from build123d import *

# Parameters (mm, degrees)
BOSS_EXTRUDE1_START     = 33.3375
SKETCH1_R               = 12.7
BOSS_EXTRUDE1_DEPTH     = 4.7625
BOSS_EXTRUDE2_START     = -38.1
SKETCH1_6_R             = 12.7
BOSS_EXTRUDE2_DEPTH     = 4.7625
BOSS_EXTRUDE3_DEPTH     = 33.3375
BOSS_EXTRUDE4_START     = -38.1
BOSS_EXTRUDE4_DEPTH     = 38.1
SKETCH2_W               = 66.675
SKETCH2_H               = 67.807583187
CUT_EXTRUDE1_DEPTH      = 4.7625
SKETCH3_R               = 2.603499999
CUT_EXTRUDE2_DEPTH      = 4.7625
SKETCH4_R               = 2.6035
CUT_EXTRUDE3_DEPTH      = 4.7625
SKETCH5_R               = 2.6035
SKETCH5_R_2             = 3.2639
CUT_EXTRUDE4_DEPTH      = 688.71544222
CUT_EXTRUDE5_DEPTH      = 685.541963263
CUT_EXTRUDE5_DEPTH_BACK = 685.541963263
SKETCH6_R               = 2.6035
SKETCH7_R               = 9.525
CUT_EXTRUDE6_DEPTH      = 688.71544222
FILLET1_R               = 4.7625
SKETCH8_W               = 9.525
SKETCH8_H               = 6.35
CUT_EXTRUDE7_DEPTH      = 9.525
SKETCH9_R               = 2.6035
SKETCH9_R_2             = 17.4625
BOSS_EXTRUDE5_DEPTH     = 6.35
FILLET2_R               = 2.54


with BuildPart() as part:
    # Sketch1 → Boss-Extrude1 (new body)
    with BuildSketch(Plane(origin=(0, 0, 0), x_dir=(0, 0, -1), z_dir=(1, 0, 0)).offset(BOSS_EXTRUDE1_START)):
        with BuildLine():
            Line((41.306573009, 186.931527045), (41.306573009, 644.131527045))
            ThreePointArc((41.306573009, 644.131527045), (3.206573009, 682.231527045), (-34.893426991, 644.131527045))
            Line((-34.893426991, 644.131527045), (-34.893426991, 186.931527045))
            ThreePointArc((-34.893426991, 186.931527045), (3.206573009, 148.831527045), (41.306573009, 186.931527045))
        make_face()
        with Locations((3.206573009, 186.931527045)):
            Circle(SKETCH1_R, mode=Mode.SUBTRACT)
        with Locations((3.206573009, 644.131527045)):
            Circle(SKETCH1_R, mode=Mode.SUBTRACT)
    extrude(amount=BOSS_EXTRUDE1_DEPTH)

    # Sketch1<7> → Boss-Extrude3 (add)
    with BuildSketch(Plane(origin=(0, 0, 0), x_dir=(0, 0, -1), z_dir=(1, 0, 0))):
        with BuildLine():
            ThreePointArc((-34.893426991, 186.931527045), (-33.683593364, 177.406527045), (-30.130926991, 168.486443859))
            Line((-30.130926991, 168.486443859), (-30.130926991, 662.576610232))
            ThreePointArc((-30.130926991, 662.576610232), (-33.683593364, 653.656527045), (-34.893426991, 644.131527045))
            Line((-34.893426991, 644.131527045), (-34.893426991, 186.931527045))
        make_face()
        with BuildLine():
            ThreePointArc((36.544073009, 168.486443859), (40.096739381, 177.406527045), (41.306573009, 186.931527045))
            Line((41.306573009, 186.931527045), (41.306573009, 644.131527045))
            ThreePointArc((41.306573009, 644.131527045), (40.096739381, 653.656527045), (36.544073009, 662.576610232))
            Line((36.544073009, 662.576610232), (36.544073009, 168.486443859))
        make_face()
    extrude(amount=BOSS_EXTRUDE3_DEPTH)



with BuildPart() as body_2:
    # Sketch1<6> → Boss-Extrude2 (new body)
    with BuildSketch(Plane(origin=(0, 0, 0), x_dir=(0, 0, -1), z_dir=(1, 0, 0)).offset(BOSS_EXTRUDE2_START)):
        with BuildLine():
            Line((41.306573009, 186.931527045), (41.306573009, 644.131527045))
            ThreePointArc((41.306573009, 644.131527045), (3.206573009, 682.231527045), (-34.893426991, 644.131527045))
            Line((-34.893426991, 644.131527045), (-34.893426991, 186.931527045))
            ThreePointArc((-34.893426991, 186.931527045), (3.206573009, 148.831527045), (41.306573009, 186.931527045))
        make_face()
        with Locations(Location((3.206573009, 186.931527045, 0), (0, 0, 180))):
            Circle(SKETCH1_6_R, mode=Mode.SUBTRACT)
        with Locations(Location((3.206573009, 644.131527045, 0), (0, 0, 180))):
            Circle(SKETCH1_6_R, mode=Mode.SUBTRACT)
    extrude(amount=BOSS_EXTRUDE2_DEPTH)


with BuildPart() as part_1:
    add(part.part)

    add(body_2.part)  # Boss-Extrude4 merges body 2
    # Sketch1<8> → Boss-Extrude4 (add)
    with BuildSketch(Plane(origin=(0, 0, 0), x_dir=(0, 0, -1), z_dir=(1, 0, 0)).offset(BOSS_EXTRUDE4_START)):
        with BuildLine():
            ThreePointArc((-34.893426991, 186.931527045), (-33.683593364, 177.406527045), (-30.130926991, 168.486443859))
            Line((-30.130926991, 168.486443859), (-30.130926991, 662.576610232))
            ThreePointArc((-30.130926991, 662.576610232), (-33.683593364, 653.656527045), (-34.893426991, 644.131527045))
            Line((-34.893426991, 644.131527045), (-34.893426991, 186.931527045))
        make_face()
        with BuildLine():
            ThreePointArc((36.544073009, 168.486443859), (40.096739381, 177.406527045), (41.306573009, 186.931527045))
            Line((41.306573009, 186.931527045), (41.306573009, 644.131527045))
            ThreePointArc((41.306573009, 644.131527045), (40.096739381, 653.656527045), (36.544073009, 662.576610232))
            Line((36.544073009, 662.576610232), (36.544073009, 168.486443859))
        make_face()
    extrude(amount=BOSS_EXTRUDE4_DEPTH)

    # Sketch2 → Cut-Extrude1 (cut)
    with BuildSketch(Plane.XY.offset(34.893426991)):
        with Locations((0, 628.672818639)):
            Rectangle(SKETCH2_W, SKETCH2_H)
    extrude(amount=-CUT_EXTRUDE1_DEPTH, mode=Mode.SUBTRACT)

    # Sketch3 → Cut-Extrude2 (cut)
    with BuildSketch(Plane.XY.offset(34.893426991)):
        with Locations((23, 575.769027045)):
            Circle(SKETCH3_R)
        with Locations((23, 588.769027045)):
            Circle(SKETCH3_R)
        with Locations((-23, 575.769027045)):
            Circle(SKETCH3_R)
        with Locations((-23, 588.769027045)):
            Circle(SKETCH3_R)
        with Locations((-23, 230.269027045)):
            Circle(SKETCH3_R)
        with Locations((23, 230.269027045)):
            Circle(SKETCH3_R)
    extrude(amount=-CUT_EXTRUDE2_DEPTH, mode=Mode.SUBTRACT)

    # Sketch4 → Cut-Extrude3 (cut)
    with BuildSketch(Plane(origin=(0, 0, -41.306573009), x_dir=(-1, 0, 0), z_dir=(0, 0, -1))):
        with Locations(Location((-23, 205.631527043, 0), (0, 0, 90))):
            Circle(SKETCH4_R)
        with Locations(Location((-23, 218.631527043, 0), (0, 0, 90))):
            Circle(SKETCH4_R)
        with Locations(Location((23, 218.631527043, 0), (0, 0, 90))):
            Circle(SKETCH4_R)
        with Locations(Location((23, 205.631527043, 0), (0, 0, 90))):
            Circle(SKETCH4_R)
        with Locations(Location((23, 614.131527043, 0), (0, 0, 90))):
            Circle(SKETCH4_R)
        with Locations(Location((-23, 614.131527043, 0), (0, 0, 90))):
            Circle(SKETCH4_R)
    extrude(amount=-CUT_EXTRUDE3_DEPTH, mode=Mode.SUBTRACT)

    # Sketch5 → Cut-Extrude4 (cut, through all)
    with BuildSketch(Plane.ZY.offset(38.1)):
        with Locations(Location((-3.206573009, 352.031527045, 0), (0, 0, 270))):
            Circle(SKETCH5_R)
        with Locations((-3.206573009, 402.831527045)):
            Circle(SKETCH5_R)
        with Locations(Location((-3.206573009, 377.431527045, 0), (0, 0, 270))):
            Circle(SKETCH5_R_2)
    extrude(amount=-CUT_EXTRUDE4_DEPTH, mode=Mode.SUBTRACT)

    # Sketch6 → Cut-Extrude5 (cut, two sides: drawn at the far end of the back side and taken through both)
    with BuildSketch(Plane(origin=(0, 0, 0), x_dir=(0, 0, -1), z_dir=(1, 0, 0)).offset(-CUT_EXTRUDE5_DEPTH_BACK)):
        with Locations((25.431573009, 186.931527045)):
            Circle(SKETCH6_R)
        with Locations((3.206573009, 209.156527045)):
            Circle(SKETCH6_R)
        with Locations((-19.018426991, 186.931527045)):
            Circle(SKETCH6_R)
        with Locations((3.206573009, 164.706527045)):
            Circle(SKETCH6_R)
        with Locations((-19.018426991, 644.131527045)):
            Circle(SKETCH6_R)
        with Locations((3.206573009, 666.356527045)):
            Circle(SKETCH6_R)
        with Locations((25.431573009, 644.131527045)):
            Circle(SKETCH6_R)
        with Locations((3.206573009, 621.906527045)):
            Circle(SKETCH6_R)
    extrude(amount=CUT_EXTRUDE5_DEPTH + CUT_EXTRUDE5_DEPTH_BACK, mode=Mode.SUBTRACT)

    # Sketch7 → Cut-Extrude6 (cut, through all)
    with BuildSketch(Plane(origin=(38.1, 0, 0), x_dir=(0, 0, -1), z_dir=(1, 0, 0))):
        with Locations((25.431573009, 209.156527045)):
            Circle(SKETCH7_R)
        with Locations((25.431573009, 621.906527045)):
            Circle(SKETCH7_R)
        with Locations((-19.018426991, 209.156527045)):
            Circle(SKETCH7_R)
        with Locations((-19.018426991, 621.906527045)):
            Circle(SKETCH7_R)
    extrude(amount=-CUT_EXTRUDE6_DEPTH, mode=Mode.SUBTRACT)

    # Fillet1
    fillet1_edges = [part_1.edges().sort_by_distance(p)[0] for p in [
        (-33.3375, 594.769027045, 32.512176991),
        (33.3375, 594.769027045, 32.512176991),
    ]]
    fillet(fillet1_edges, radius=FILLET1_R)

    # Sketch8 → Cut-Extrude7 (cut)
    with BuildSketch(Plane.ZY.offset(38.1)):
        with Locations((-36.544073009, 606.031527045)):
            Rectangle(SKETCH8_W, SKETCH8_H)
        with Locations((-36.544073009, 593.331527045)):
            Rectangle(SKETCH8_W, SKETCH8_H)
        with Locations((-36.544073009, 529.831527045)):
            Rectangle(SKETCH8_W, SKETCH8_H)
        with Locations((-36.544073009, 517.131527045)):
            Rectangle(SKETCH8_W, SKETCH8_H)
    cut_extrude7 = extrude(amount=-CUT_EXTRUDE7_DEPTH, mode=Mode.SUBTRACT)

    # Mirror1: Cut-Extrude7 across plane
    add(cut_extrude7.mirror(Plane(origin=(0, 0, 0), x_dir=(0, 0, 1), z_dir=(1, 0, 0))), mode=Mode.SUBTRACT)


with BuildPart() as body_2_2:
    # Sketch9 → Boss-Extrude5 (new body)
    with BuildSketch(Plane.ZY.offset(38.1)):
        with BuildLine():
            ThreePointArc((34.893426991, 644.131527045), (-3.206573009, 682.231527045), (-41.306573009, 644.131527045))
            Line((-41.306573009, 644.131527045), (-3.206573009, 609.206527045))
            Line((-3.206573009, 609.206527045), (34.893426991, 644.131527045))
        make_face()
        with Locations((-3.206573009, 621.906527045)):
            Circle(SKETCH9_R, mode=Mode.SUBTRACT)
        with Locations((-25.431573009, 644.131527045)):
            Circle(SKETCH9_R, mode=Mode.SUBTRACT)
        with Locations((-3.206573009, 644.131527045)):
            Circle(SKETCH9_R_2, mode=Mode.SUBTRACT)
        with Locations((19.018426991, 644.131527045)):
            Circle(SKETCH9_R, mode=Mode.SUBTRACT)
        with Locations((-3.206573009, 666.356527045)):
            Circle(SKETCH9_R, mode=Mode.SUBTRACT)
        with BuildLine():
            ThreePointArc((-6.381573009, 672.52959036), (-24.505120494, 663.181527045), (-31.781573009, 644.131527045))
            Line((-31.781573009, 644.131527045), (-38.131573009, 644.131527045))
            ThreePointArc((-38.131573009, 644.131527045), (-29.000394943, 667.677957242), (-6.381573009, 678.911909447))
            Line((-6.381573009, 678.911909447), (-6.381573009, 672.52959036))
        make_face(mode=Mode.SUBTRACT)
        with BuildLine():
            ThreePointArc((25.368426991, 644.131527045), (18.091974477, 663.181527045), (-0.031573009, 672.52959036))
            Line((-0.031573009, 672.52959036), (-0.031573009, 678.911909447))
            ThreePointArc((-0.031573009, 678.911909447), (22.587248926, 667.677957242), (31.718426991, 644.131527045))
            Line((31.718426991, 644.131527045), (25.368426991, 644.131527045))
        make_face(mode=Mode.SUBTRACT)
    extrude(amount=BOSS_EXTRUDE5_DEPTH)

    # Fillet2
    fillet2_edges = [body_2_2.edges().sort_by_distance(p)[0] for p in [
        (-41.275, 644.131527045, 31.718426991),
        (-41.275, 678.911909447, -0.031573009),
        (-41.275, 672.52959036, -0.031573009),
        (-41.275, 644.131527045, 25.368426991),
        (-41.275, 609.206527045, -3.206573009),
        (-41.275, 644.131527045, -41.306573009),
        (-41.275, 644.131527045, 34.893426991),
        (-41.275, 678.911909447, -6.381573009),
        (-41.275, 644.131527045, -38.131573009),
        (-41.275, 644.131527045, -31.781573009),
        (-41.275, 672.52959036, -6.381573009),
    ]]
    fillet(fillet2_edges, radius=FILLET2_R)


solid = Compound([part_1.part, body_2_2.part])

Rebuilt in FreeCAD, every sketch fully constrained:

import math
import FreeCAD as App
import Part
import Sketcher

V = App.Vector
Q = App.Units.Quantity


def edges_at(feature, points):
    """Names of the edges that pass closest to the given points."""
    edges = feature.Shape.Edges
    near = lambda p: min(range(len(edges)), key=lambda i: edges[i].distToShape(Part.Vertex(*p))[0])
    return sorted({f"Edge{near(p) + 1}" for p in points})


def add_polygon(sketch, points):
    """Adds a closed chain of lines whose ends are joined by coincident constraints."""
    first, n = sketch.GeometryCount, len(points)
    for a, b in zip(points, points[1:] + points[:1]):
        sketch.addGeometry(Part.LineSegment(App.Vector(*a, 0), App.Vector(*b, 0)), False)
    for i in range(n):
        sketch.addConstraint(Sketcher.Constraint("Coincident", first + i, 2, first + (i + 1) % n, 1))

doc = App.newDocument("Part")
body = doc.addObject("PartDesign::Body", "Body")

# Sketch on YZ plane
sketch1 = body.newObject("Sketcher::SketchObject", "Sketch")
sketch1.AttachmentSupport = (doc.getObject("YZ_Plane"), [""])
sketch1.MapMode = "FlatFace"
sketch1.AttachmentOffset = App.Placement(V(0, 0, 1.3125 * 25.4), App.Rotation())
sketch1.addGeometry(Part.LineSegment(V(187, -41, 0), V(644, -41, 0)), False)
sketch1.addGeometry(Part.ArcOfCircle(Part.Circle(V(644, -3, 0), V(0, 0, 1), 38), math.radians(-90), math.radians(90)), False)
sketch1.addGeometry(Part.LineSegment(V(644, 35, 0), V(187, 35, 0)), False)
sketch1.addGeometry(Part.ArcOfCircle(Part.Circle(V(187, -3, 0), V(0, 0, 1), 38), math.radians(90), math.radians(270)), False)
sketch1.addGeometry(Part.Circle(V(187, -3, 0), V(0, 0, 1), 13), False)
sketch1.addGeometry(Part.Circle(V(644, -3, 0), V(0, 0, 1), 13), False)
sketch1.addConstraint(Sketcher.Constraint("Tangent", 0, 2, 1, 1))
sketch1.addConstraint(Sketcher.Constraint("Tangent", 1, 2, 2, 1))
sketch1.addConstraint(Sketcher.Constraint("Tangent", 2, 2, 3, 1))
sketch1.addConstraint(Sketcher.Constraint("Tangent", 3, 2, 0, 1))
sketch1.addConstraint(Sketcher.Constraint("Horizontal", 0))
sketch1.addConstraint(Sketcher.Constraint("Horizontal", 2))
sketch1.addConstraint(Sketcher.Constraint("Coincident", 4, 3, 3, 3))
sketch1.addConstraint(Sketcher.Constraint("Coincident", 5, 3, 1, 3))
sketch1.addConstraint(Sketcher.Constraint("Equal", 4, 5))
sketch1.addConstraint(Sketcher.Constraint("Diameter", 4, Q("1 in")))
sketch1.addConstraint(Sketcher.Constraint("Radius", 1, Q("1.5 in")))
sketch1.addConstraint(Sketcher.Constraint("DistanceX", 0, 1, 0, 2, Q("18 in")))
sketch1.addConstraint(Sketcher.Constraint("DistanceX", -1, 1, 1, 3, 644.131527))
sketch1.addConstraint(Sketcher.Constraint("DistanceY", 1, 3, -1, 1, 3.206573))
pad1 = body.newObject("PartDesign::Pad", "Pad")
pad1.Profile = sketch1
pad1.Length = Q("0.1875 in")

# Sketch on YZ plane
sketch2 = body.newObject("Sketcher::SketchObject", "Sketch001")
sketch2.AttachmentSupport = (doc.getObject("YZ_Plane"), [""])
sketch2.MapMode = "FlatFace"
sketch2.addGeometry(Part.ArcOfCircle(Part.Circle(V(187, -3, 0), V(0, 0, 1), 38), math.radians(90), math.radians(119)), False)
sketch2.addGeometry(Part.LineSegment(V(168, 30, 0), V(663, 30, 0)), False)
sketch2.addGeometry(Part.ArcOfCircle(Part.Circle(V(644, -3, 0), V(0, 0, 1), 38), math.radians(61), math.radians(90)), False)
sketch2.addGeometry(Part.LineSegment(V(644, 35, 0), V(187, 35, 0)), False)
sketch2.addGeometry(Part.ArcOfCircle(Part.Circle(V(187, -3, 0), V(0, 0, 1), 38), math.radians(-119), math.radians(-90)), False)
sketch2.addGeometry(Part.LineSegment(V(187, -41, 0), V(644, -41, 0)), False)
sketch2.addGeometry(Part.ArcOfCircle(Part.Circle(V(644, -3, 0), V(0, 0, 1), 38), math.radians(-90), math.radians(-61)), False)
sketch2.addGeometry(Part.LineSegment(V(663, -37, 0), V(168, -37, 0)), False)
sketch2.addConstraint(Sketcher.Constraint("Coincident", 0, 2, 1, 1))
sketch2.addConstraint(Sketcher.Constraint("Coincident", 1, 2, 2, 1))
sketch2.addConstraint(Sketcher.Constraint("Tangent", 2, 2, 3, 1))
sketch2.addConstraint(Sketcher.Constraint("Tangent", 3, 2, 0, 1))
sketch2.addConstraint(Sketcher.Constraint("Tangent", 4, 2, 5, 1))
sketch2.addConstraint(Sketcher.Constraint("Tangent", 5, 2, 6, 1))
sketch2.addConstraint(Sketcher.Constraint("Coincident", 6, 2, 7, 1))
sketch2.addConstraint(Sketcher.Constraint("Coincident", 7, 2, 4, 1))
sketch2.addConstraint(Sketcher.Constraint("Horizontal", 1))
sketch2.addConstraint(Sketcher.Constraint("Horizontal", 3))
sketch2.addConstraint(Sketcher.Constraint("Horizontal", 5))
sketch2.addConstraint(Sketcher.Constraint("Horizontal", 7))
sketch2.addConstraint(Sketcher.Constraint("Coincident", 4, 3, 0, 3))
sketch2.addConstraint(Sketcher.Constraint("Coincident", 6, 3, 2, 3))
sketch2.addConstraint(Sketcher.Constraint("Equal", 0, 2))
sketch2.addConstraint(Sketcher.Constraint("Equal", 2, 4))
sketch2.addConstraint(Sketcher.Constraint("Vertical", 1, 2, 6, 2))
sketch2.addConstraint(Sketcher.Constraint("Radius", 0, Q("1.5 in")))
sketch2.addConstraint(Sketcher.Constraint("DistanceX", 3, 2, 3, 1, Q("18 in")))
sketch2.addConstraint(Sketcher.Constraint("DistanceY", 0, 3, 0, 2, Q("1.3125 in")))
sketch2.addConstraint(Sketcher.Constraint("DistanceX", -1, 1, 1, 2, 662.57661))
sketch2.addConstraint(Sketcher.Constraint("DistanceY", 0, 3, -1, 1, 3.206573))
pad2 = body.newObject("PartDesign::Pad", "Pad001")
pad2.Profile = sketch2
pad2.Length = Q("1.3125 in")
body2 = doc.addObject("PartDesign::Body", "Body001")

# Sketch on YZ plane
sketch3 = body2.newObject("Sketcher::SketchObject", "Sketch002")
sketch3.AttachmentSupport = (doc.getObject("YZ_Plane001"), [""])
sketch3.MapMode = "FlatFace"
sketch3.AttachmentOffset = App.Placement(V(0, 0, -1.5 * 25.4), App.Rotation())
sketch3.addGeometry(Part.LineSegment(V(187, -41, 0), V(644, -41, 0)), False)
sketch3.addGeometry(Part.ArcOfCircle(Part.Circle(V(644, -3, 0), V(0, 0, 1), 38), math.radians(-90), math.radians(90)), False)
sketch3.addGeometry(Part.LineSegment(V(644, 35, 0), V(187, 35, 0)), False)
sketch3.addGeometry(Part.ArcOfCircle(Part.Circle(V(187, -3, 0), V(0, 0, 1), 38), math.radians(90), math.radians(270)), False)
sketch3.addGeometry(Part.Circle(V(187, -3, 0), V(0, 0, 1), 13), False)
sketch3.addGeometry(Part.Circle(V(644, -3, 0), V(0, 0, 1), 13), False)
sketch3.addConstraint(Sketcher.Constraint("Tangent", 0, 2, 1, 1))
sketch3.addConstraint(Sketcher.Constraint("Tangent", 1, 2, 2, 1))
sketch3.addConstraint(Sketcher.Constraint("Tangent", 2, 2, 3, 1))
sketch3.addConstraint(Sketcher.Constraint("Tangent", 3, 2, 0, 1))
sketch3.addConstraint(Sketcher.Constraint("Horizontal", 0))
sketch3.addConstraint(Sketcher.Constraint("Horizontal", 2))
sketch3.addConstraint(Sketcher.Constraint("Coincident", 4, 3, 3, 3))
sketch3.addConstraint(Sketcher.Constraint("Coincident", 5, 3, 1, 3))
sketch3.addConstraint(Sketcher.Constraint("Equal", 4, 5))
sketch3.addConstraint(Sketcher.Constraint("Diameter", 4, Q("1 in")))
sketch3.addConstraint(Sketcher.Constraint("Radius", 1, Q("1.5 in")))
sketch3.addConstraint(Sketcher.Constraint("DistanceX", 0, 1, 0, 2, Q("18 in")))
sketch3.addConstraint(Sketcher.Constraint("DistanceX", -1, 1, 1, 3, 644.131527))
sketch3.addConstraint(Sketcher.Constraint("DistanceY", 1, 3, -1, 1, 3.206573))
pad3 = body2.newObject("PartDesign::Pad", "Pad002")
pad3.Profile = sketch3
pad3.Length = Q("0.1875 in")
body.AllowCompound = True
doc.recompute()

boolean = body.newObject("PartDesign::Boolean", "Boolean")
boolean.Type = "Fuse"
boolean.addObjects([body2])

# Sketch on YZ plane
sketch4 = body.newObject("Sketcher::SketchObject", "Sketch003")
sketch4.AttachmentSupport = (doc.getObject("YZ_Plane"), [""])
sketch4.MapMode = "FlatFace"
sketch4.AttachmentOffset = App.Placement(V(0, 0, -1.5 * 25.4), App.Rotation())
sketch4.addGeometry(Part.ArcOfCircle(Part.Circle(V(187, -3, 0), V(0, 0, 1), 38), math.radians(90), math.radians(119)), False)
sketch4.addGeometry(Part.LineSegment(V(168, 30, 0), V(663, 30, 0)), False)
sketch4.addGeometry(Part.ArcOfCircle(Part.Circle(V(644, -3, 0), V(0, 0, 1), 38), math.radians(61), math.radians(90)), False)
sketch4.addGeometry(Part.LineSegment(V(644, 35, 0), V(187, 35, 0)), False)
sketch4.addGeometry(Part.ArcOfCircle(Part.Circle(V(187, -3, 0), V(0, 0, 1), 38), math.radians(-119), math.radians(-90)), False)
sketch4.addGeometry(Part.LineSegment(V(187, -41, 0), V(644, -41, 0)), False)
sketch4.addGeometry(Part.ArcOfCircle(Part.Circle(V(644, -3, 0), V(0, 0, 1), 38), math.radians(-90), math.radians(-61)), False)
sketch4.addGeometry(Part.LineSegment(V(663, -37, 0), V(168, -37, 0)), False)
sketch4.addConstraint(Sketcher.Constraint("Coincident", 0, 2, 1, 1))
sketch4.addConstraint(Sketcher.Constraint("Coincident", 1, 2, 2, 1))
sketch4.addConstraint(Sketcher.Constraint("Tangent", 2, 2, 3, 1))
sketch4.addConstraint(Sketcher.Constraint("Tangent", 3, 2, 0, 1))
sketch4.addConstraint(Sketcher.Constraint("Tangent", 4, 2, 5, 1))
sketch4.addConstraint(Sketcher.Constraint("Tangent", 5, 2, 6, 1))
sketch4.addConstraint(Sketcher.Constraint("Coincident", 6, 2, 7, 1))
sketch4.addConstraint(Sketcher.Constraint("Coincident", 7, 2, 4, 1))
sketch4.addConstraint(Sketcher.Constraint("Horizontal", 1))
sketch4.addConstraint(Sketcher.Constraint("Horizontal", 3))
sketch4.addConstraint(Sketcher.Constraint("Horizontal", 5))
sketch4.addConstraint(Sketcher.Constraint("Horizontal", 7))
sketch4.addConstraint(Sketcher.Constraint("Coincident", 4, 3, 0, 3))
sketch4.addConstraint(Sketcher.Constraint("Coincident", 6, 3, 2, 3))
sketch4.addConstraint(Sketcher.Constraint("Equal", 0, 2))
sketch4.addConstraint(Sketcher.Constraint("Equal", 2, 4))
sketch4.addConstraint(Sketcher.Constraint("Vertical", 1, 2, 6, 2))
sketch4.addConstraint(Sketcher.Constraint("Radius", 0, Q("1.5 in")))
sketch4.addConstraint(Sketcher.Constraint("DistanceX", 3, 2, 3, 1, Q("18 in")))
sketch4.addConstraint(Sketcher.Constraint("DistanceY", 0, 3, 0, 2, Q("1.3125 in")))
sketch4.addConstraint(Sketcher.Constraint("DistanceX", -1, 1, 1, 2, 662.57661))
sketch4.addConstraint(Sketcher.Constraint("DistanceY", 0, 3, -1, 1, 3.206573))
pad4 = body.newObject("PartDesign::Pad", "Pad003")
pad4.Profile = sketch4
pad4.Length = Q("1.5 in")

# Sketch on XY plane
sketch5 = body.newObject("Sketcher::SketchObject", "Sketch004")
sketch5.AttachmentSupport = (doc.getObject("XY_Plane"), [""])
sketch5.MapMode = "FlatFace"
sketch5.AttachmentOffset = App.Placement(V(0, 0, 34.893427), App.Rotation())
add_polygon(sketch5, [(-33, 663), (-33, 595), (33, 595), (33, 663)])  # lines 0-3
sketch5.addConstraint(Sketcher.Constraint("Vertical", 0))
sketch5.addConstraint(Sketcher.Constraint("Horizontal", 1))
sketch5.addConstraint(Sketcher.Constraint("Vertical", 2))
sketch5.addConstraint(Sketcher.Constraint("Horizontal", 3))
sketch5.addConstraint(Sketcher.Constraint("DistanceX", 1, 1, 1, 2, Q("2.625 in")))
sketch5.addConstraint(Sketcher.Constraint("DistanceX", 0, 2, -1, 1, Q("1.3125 in")))
sketch5.addConstraint(Sketcher.Constraint("DistanceY", 0, 2, 0, 1, 67.807583))
sketch5.addConstraint(Sketcher.Constraint("DistanceY", -1, 1, 2, 2, 662.57661))
pocket1 = body.newObject("PartDesign::Pocket", "Pocket")
pocket1.Profile = sketch5
pocket1.Length = Q("0.1875 in")

# Sketch on XY plane
sketch6 = body.newObject("Sketcher::SketchObject", "Sketch005")
sketch6.AttachmentSupport = (doc.getObject("XY_Plane"), [""])
sketch6.MapMode = "FlatFace"
sketch6.AttachmentOffset = App.Placement(V(0, 0, 34.893427), App.Rotation())
sketch6.addGeometry(Part.Circle(V(23, 575.8, 0), V(0, 0, 1), 2.6), False)
sketch6.addGeometry(Part.Circle(V(23, 588.8, 0), V(0, 0, 1), 2.6), False)
sketch6.addGeometry(Part.Circle(V(-23, 575.8, 0), V(0, 0, 1), 2.6), False)
sketch6.addGeometry(Part.Circle(V(-23, 588.8, 0), V(0, 0, 1), 2.6), False)
sketch6.addGeometry(Part.Circle(V(-23, 230.3, 0), V(0, 0, 1), 2.6), False)
sketch6.addGeometry(Part.Circle(V(23, 230.3, 0), V(0, 0, 1), 2.6), False)
sketch6.addConstraint(Sketcher.Constraint("Equal", 0, 1))
sketch6.addConstraint(Sketcher.Constraint("Equal", 1, 2))
sketch6.addConstraint(Sketcher.Constraint("Equal", 2, 3))
sketch6.addConstraint(Sketcher.Constraint("Equal", 3, 4))
sketch6.addConstraint(Sketcher.Constraint("Equal", 4, 5))
sketch6.addConstraint(Sketcher.Constraint("Symmetric", 0, 3, 2, 3, -2))
sketch6.addConstraint(Sketcher.Constraint("Symmetric", 1, 3, 3, 3, -2))
sketch6.addConstraint(Sketcher.Constraint("Symmetric", 4, 3, 5, 3, -2))
sketch6.addConstraint(Sketcher.Constraint("Vertical", 0, 3, 1, 3))
sketch6.addConstraint(Sketcher.Constraint("Vertical", 3, 3, 4, 3))
sketch6.addConstraint(Sketcher.Constraint("Diameter", 0, Q("0.205 in")))
sketch6.addConstraint(Sketcher.Constraint("DistanceX", -1, 1, 0, 3, 23.0))
sketch6.addConstraint(Sketcher.Constraint("DistanceY", 0, 3, 1, 3, 13.0))
sketch6.addConstraint(Sketcher.Constraint("DistanceY", 4, 3, 2, 3, 345.5))
sketch6.addConstraint(Sketcher.Constraint("DistanceY", -1, 1, 0, 3, 575.769027))
pocket2 = body.newObject("PartDesign::Pocket", "Pocket001")
pocket2.Profile = sketch6
pocket2.Length = Q("0.1875 in")

# Sketch on XY plane
sketch7 = body.newObject("Sketcher::SketchObject", "Sketch006")
sketch7.AttachmentSupport = (doc.getObject("XY_Plane"), [""])
sketch7.MapMode = "FlatFace"
sketch7.AttachmentOffset = App.Placement(V(0, 0, -41.306573), App.Rotation())
sketch7.addGeometry(Part.Circle(V(23, 205.6, 0), V(0, 0, 1), 2.6), False)
sketch7.addGeometry(Part.Circle(V(23, 218.6, 0), V(0, 0, 1), 2.6), False)
sketch7.addGeometry(Part.Circle(V(-23, 218.6, 0), V(0, 0, 1), 2.6), False)
sketch7.addGeometry(Part.Circle(V(-23, 205.6, 0), V(0, 0, 1), 2.6), False)
sketch7.addGeometry(Part.Circle(V(-23, 614.1, 0), V(0, 0, 1), 2.6), False)
sketch7.addGeometry(Part.Circle(V(23, 614.1, 0), V(0, 0, 1), 2.6), False)
sketch7.addConstraint(Sketcher.Constraint("Equal", 0, 1))
sketch7.addConstraint(Sketcher.Constraint("Equal", 1, 2))
sketch7.addConstraint(Sketcher.Constraint("Equal", 2, 3))
sketch7.addConstraint(Sketcher.Constraint("Equal", 3, 4))
sketch7.addConstraint(Sketcher.Constraint("Equal", 4, 5))
sketch7.addConstraint(Sketcher.Constraint("Symmetric", 1, 3, 2, 3, -2))
sketch7.addConstraint(Sketcher.Constraint("Symmetric", 0, 3, 3, 3, -2))
sketch7.addConstraint(Sketcher.Constraint("Symmetric", 4, 3, 5, 3, -2))
sketch7.addConstraint(Sketcher.Constraint("Vertical", 0, 3, 1, 3))
sketch7.addConstraint(Sketcher.Constraint("Vertical", 3, 3, 4, 3))
sketch7.addConstraint(Sketcher.Constraint("Diameter", 0, Q("0.205 in")))
sketch7.addConstraint(Sketcher.Constraint("DistanceX", -1, 1, 0, 3, 23.0))
sketch7.addConstraint(Sketcher.Constraint("DistanceY", 0, 3, 1, 3, 13.0))
sketch7.addConstraint(Sketcher.Constraint("DistanceY", 2, 3, 4, 3, 395.5))
sketch7.addConstraint(Sketcher.Constraint("DistanceY", -1, 1, 0, 3, 205.631527))
pocket3 = body.newObject("PartDesign::Pocket", "Pocket002")
pocket3.Profile = sketch7
pocket3.Length = Q("0.1875 in")
pocket3.Reversed = True

# Sketch on YZ plane
sketch8 = body.newObject("Sketcher::SketchObject", "Sketch007")
sketch8.AttachmentSupport = (doc.getObject("YZ_Plane"), [""])
sketch8.MapMode = "FlatFace"
sketch8.AttachmentOffset = App.Placement(V(0, 0, -1.5 * 25.4), App.Rotation())
sketch8.addGeometry(Part.Circle(V(352, -3.2, 0), V(0, 0, 1), 2.6), False)
sketch8.addGeometry(Part.Circle(V(402.8, -3.2, 0), V(0, 0, 1), 2.6), False)
sketch8.addGeometry(Part.Circle(V(377.4, -3.2, 0), V(0, 0, 1), 3.3), False)
sketch8.addConstraint(Sketcher.Constraint("Equal", 0, 1))
sketch8.addConstraint(Sketcher.Constraint("Horizontal", 0, 3, 1, 3))
sketch8.addConstraint(Sketcher.Constraint("Horizontal", 1, 3, 2, 3))
sketch8.addConstraint(Sketcher.Constraint("Diameter", 0, Q("0.205 in")))
sketch8.addConstraint(Sketcher.Constraint("Diameter", 2, Q("0.257 in")))
sketch8.addConstraint(Sketcher.Constraint("DistanceX", 0, 3, 1, 3, Q("2 in")))
sketch8.addConstraint(Sketcher.Constraint("DistanceX", 0, 3, 2, 3, Q("1 in")))
sketch8.addConstraint(Sketcher.Constraint("DistanceX", -1, 1, 0, 3, 352.031527))
sketch8.addConstraint(Sketcher.Constraint("DistanceY", 0, 3, -1, 1, 3.206573))
pocket4 = body.newObject("PartDesign::Pocket", "Pocket003")
pocket4.Profile = sketch8
pocket4.Type = "ThroughAll"
pocket4.Reversed = True

# Sketch on YZ plane
sketch9 = body.newObject("Sketcher::SketchObject", "Sketch008")
sketch9.AttachmentSupport = (doc.getObject("YZ_Plane"), [""])
sketch9.MapMode = "FlatFace"
sketch9.addGeometry(Part.Circle(V(186.9, -25.4, 0), V(0, 0, 1), 2.6), False)
sketch9.addGeometry(Part.Circle(V(209.2, -3.2, 0), V(0, 0, 1), 2.6), False)
sketch9.addGeometry(Part.Circle(V(186.9, 19, 0), V(0, 0, 1), 2.6), False)
sketch9.addGeometry(Part.Circle(V(164.7, -3.2, 0), V(0, 0, 1), 2.6), False)
sketch9.addGeometry(Part.Circle(V(644.1, 19, 0), V(0, 0, 1), 2.6), False)
sketch9.addGeometry(Part.Circle(V(666.4, -3.2, 0), V(0, 0, 1), 2.6), False)
sketch9.addGeometry(Part.Circle(V(644.1, -25.4, 0), V(0, 0, 1), 2.6), False)
sketch9.addGeometry(Part.Circle(V(621.9, -3.2, 0), V(0, 0, 1), 2.6), False)
sketch9.addConstraint(Sketcher.Constraint("Equal", 0, 1))
sketch9.addConstraint(Sketcher.Constraint("Equal", 1, 2))
sketch9.addConstraint(Sketcher.Constraint("Equal", 2, 3))
sketch9.addConstraint(Sketcher.Constraint("Equal", 3, 4))
sketch9.addConstraint(Sketcher.Constraint("Equal", 4, 5))
sketch9.addConstraint(Sketcher.Constraint("Equal", 5, 6))
sketch9.addConstraint(Sketcher.Constraint("Equal", 6, 7))
sketch9.addConstraint(Sketcher.Constraint("Horizontal", 1, 3, 3, 3))
sketch9.addConstraint(Sketcher.Constraint("Horizontal", 2, 3, 4, 3))
sketch9.addConstraint(Sketcher.Constraint("Horizontal", 3, 3, 5, 3))
sketch9.addConstraint(Sketcher.Constraint("Horizontal", 0, 3, 6, 3))
sketch9.addConstraint(Sketcher.Constraint("Horizontal", 5, 3, 7, 3))
sketch9.addConstraint(Sketcher.Constraint("Vertical", 0, 3, 2, 3))
sketch9.addConstraint(Sketcher.Constraint("Vertical", 4, 3, 6, 3))
sketch9.addConstraint(Sketcher.Constraint("Diameter", 0, Q("0.205 in")))
sketch9.addConstraint(Sketcher.Constraint("DistanceX", 2, 3, 4, 3, Q("18 in")))
sketch9.addConstraint(Sketcher.Constraint("DistanceX", 1, 3, 5, 3, Q("18 in")))
sketch9.addConstraint(Sketcher.Constraint("DistanceY", 0, 3, 2, 3, Q("1.75 in")))
sketch9.addConstraint(Sketcher.Constraint("DistanceX", 3, 3, 1, 3, Q("1.75 in")))
sketch9.addConstraint(Sketcher.Constraint("DistanceX", 7, 3, 5, 3, Q("1.75 in")))
sketch9.addConstraint(Sketcher.Constraint("DistanceX", 0, 3, 1, 3, Q("0.875 in")))
sketch9.addConstraint(Sketcher.Constraint("DistanceY", 0, 3, 1, 3, Q("0.875 in")))
sketch9.addConstraint(Sketcher.Constraint("DistanceX", -1, 1, 0, 3, 186.931527))
sketch9.addConstraint(Sketcher.Constraint("DistanceY", 0, 3, -1, 1, 25.431573))
pocket5 = body.newObject("PartDesign::Pocket", "Pocket004")
pocket5.Profile = sketch9
pocket5.Type = "ThroughAll"
pocket5.Midplane = True

# Sketch on YZ plane
sketch10 = body.newObject("Sketcher::SketchObject", "Sketch009")
sketch10.AttachmentSupport = (doc.getObject("YZ_Plane"), [""])
sketch10.MapMode = "FlatFace"
sketch10.AttachmentOffset = App.Placement(V(0, 0, 1.5 * 25.4), App.Rotation())
sketch10.addGeometry(Part.Circle(V(209, -25, 0), V(0, 0, 1), 10), False)
sketch10.addGeometry(Part.Circle(V(622, -25, 0), V(0, 0, 1), 10), False)
sketch10.addGeometry(Part.Circle(V(209, 19, 0), V(0, 0, 1), 10), False)
sketch10.addGeometry(Part.Circle(V(622, 19, 0), V(0, 0, 1), 10), False)
sketch10.addConstraint(Sketcher.Constraint("Equal", 0, 1))
sketch10.addConstraint(Sketcher.Constraint("Equal", 1, 2))
sketch10.addConstraint(Sketcher.Constraint("Equal", 2, 3))
sketch10.addConstraint(Sketcher.Constraint("Horizontal", 0, 3, 1, 3))
sketch10.addConstraint(Sketcher.Constraint("Horizontal", 2, 3, 3, 3))
sketch10.addConstraint(Sketcher.Constraint("Vertical", 0, 3, 2, 3))
sketch10.addConstraint(Sketcher.Constraint("Vertical", 1, 3, 3, 3))
sketch10.addConstraint(Sketcher.Constraint("Diameter", 0, Q("0.75 in")))
sketch10.addConstraint(Sketcher.Constraint("DistanceX", 0, 3, 1, 3, Q("16.25 in")))
sketch10.addConstraint(Sketcher.Constraint("DistanceY", 0, 3, 2, 3, Q("1.75 in")))
sketch10.addConstraint(Sketcher.Constraint("DistanceX", -1, 1, 0, 3, 209.156527))
sketch10.addConstraint(Sketcher.Constraint("DistanceY", 0, 3, -1, 1, 25.431573))
pocket6 = body.newObject("PartDesign::Pocket", "Pocket005")
pocket6.Profile = sketch10
pocket6.Type = "ThroughAll"
doc.recompute()

fillet = body.newObject("PartDesign::Fillet", "Fillet")
fillet.Base = (pocket6, edges_at(pocket6, [(-33.337, 594.769, 32.512), (33.337, 594.769, 32.512)]))
fillet.Radius = Q("0.1875 in")

# Sketch on YZ plane
sketch11 = body.newObject("Sketcher::SketchObject", "Sketch010")
sketch11.AttachmentSupport = (doc.getObject("YZ_Plane"), [""])
sketch11.MapMode = "FlatFace"
sketch11.AttachmentOffset = App.Placement(V(0, 0, -1.5 * 25.4), App.Rotation())
add_polygon(sketch11, [(609, -41), (603, -41), (603, -32), (609, -32)])  # lines 0-3
add_polygon(sketch11, [(597, -41), (590, -41), (590, -32), (597, -32)])  # lines 4-7
add_polygon(sketch11, [(533, -41), (527, -41), (527, -32), (533, -32)])  # lines 8-11
add_polygon(sketch11, [(520, -41), (514, -41), (514, -32), (520, -32)])  # lines 12-15
sketch11.addConstraint(Sketcher.Constraint("Horizontal", 0))
sketch11.addConstraint(Sketcher.Constraint("Vertical", 1))
sketch11.addConstraint(Sketcher.Constraint("Horizontal", 2))
sketch11.addConstraint(Sketcher.Constraint("Vertical", 3))
sketch11.addConstraint(Sketcher.Constraint("Horizontal", 4))
sketch11.addConstraint(Sketcher.Constraint("Vertical", 5))
sketch11.addConstraint(Sketcher.Constraint("Horizontal", 6))
sketch11.addConstraint(Sketcher.Constraint("Vertical", 7))
sketch11.addConstraint(Sketcher.Constraint("Horizontal", 8))
sketch11.addConstraint(Sketcher.Constraint("Vertical", 9))
sketch11.addConstraint(Sketcher.Constraint("Horizontal", 10))
sketch11.addConstraint(Sketcher.Constraint("Vertical", 11))
sketch11.addConstraint(Sketcher.Constraint("Horizontal", 12))
sketch11.addConstraint(Sketcher.Constraint("Vertical", 13))
sketch11.addConstraint(Sketcher.Constraint("Horizontal", 14))
sketch11.addConstraint(Sketcher.Constraint("Vertical", 15))
sketch11.addConstraint(Sketcher.Constraint("Horizontal", 3, 2, 4, 2))
sketch11.addConstraint(Sketcher.Constraint("Horizontal", 2, 2, 5, 2))
sketch11.addConstraint(Sketcher.Constraint("Horizontal", 7, 2, 8, 2))
sketch11.addConstraint(Sketcher.Constraint("Horizontal", 6, 2, 9, 2))
sketch11.addConstraint(Sketcher.Constraint("Horizontal", 11, 2, 12, 2))
sketch11.addConstraint(Sketcher.Constraint("Horizontal", 10, 2, 13, 2))
sketch11.addConstraint(Sketcher.Constraint("Equal", 2, 4))
sketch11.addConstraint(Sketcher.Constraint("Equal", 6, 8))
sketch11.addConstraint(Sketcher.Constraint("Equal", 10, 12))
sketch11.addConstraint(Sketcher.Constraint("DistanceX", 8, 2, 0, 2, Q("3 in")))
sketch11.addConstraint(Sketcher.Constraint("DistanceX", 12, 2, 4, 2, Q("3 in")))
sketch11.addConstraint(Sketcher.Constraint("DistanceX", 0, 2, 0, 1, Q("0.25 in")))
sketch11.addConstraint(Sketcher.Constraint("DistanceX", 4, 2, 0, 2, Q("0.5 in")))
sketch11.addConstraint(Sketcher.Constraint("DistanceY", 1, 1, 1, 2, Q("0.375 in")))
sketch11.addConstraint(Sketcher.Constraint("DistanceX", -1, 1, 0, 2, 602.856527))
sketch11.addConstraint(Sketcher.Constraint("DistanceY", 0, 2, -1, 1, 41.306573))
pocket7 = body.newObject("PartDesign::Pocket", "Pocket006")
pocket7.Profile = sketch11
pocket7.Length = Q("0.375 in")
pocket7.Reversed = True
doc.recompute()

mirrored = body.newObject("PartDesign::Mirrored", "Mirrored")
mirrored.Originals = [pocket7]
mirrored.MirrorPlane = (doc.getObject("YZ_Plane"), [""])
body.Tip = mirrored
body3 = doc.addObject("PartDesign::Body", "Body002")

# Sketch on YZ plane
sketch12 = body3.newObject("Sketcher::SketchObject", "Sketch011")
sketch12.AttachmentSupport = (doc.getObject("YZ_Plane002"), [""])
sketch12.MapMode = "FlatFace"
sketch12.AttachmentOffset = App.Placement(V(0, 0, -1.5 * 25.4), App.Rotation())
sketch12.addGeometry(Part.ArcOfCircle(Part.Circle(V(644.1, -3.2, 0), V(0, 0, 1), 38.1), math.radians(-90), math.radians(90)), False)
sketch12.addGeometry(Part.LineSegment(V(644.1, -41.3, 0), V(609.2, -3.2, 0)), False)
sketch12.addGeometry(Part.LineSegment(V(609.2, -3.2, 0), V(644.1, 34.9, 0)), False)
sketch12.addGeometry(Part.Circle(V(621.9, -3.2, 0), V(0, 0, 1), 2.6), False)
sketch12.addGeometry(Part.Circle(V(644.1, -25.4, 0), V(0, 0, 1), 2.6), False)
sketch12.addGeometry(Part.Circle(V(644.1, -3.2, 0), V(0, 0, 1), 17.5), False)
sketch12.addGeometry(Part.Circle(V(644.1, 19, 0), V(0, 0, 1), 2.6), False)
sketch12.addGeometry(Part.LineSegment(V(678.9, -6.4, 0), V(672.5, -6.4, 0)), False)
sketch12.addGeometry(Part.ArcOfCircle(Part.Circle(V(644.1, -3.2, 0), V(0, 0, 1), 28.6), math.radians(-90), math.radians(-6)), False)
sketch12.addGeometry(Part.LineSegment(V(644.1, -31.8, 0), V(644.1, -38.1, 0)), False)
sketch12.addGeometry(Part.ArcOfCircle(Part.Circle(V(644.1, -3.2, 0), V(0, 0, 1), 34.9), math.radians(-90), math.radians(-5)), False)
sketch12.addGeometry(Part.Circle(V(666.4, -3.2, 0), V(0, 0, 1), 2.6), False)
sketch12.addGeometry(Part.LineSegment(V(644.1, 31.7, 0), V(644.1, 25.4, 0)), False)
sketch12.addGeometry(Part.ArcOfCircle(Part.Circle(V(644.1, -3.2, 0), V(0, 0, 1), 28.6), math.radians(6), math.radians(90)), False)
sketch12.addGeometry(Part.LineSegment(V(672.5, 0, 0), V(678.9, 0, 0)), False)
sketch12.addGeometry(Part.ArcOfCircle(Part.Circle(V(644.1, -3.2, 0), V(0, 0, 1), 34.9), math.radians(5), math.radians(90)), False)
sketch12.addConstraint(Sketcher.Constraint("Coincident", 0, 1, 1, 1))
sketch12.addConstraint(Sketcher.Constraint("Coincident", 1, 2, 2, 1))
sketch12.addConstraint(Sketcher.Constraint("Coincident", 2, 2, 0, 2))
sketch12.addConstraint(Sketcher.Constraint("Coincident", 7, 2, 8, 2))
sketch12.addConstraint(Sketcher.Constraint("Coincident", 8, 1, 9, 1))
sketch12.addConstraint(Sketcher.Constraint("Coincident", 9, 2, 10, 1))
sketch12.addConstraint(Sketcher.Constraint("Coincident", 10, 2, 7, 1))
sketch12.addConstraint(Sketcher.Constraint("Coincident", 12, 2, 13, 2))
sketch12.addConstraint(Sketcher.Constraint("Coincident", 13, 1, 14, 1))
sketch12.addConstraint(Sketcher.Constraint("Coincident", 14, 2, 15, 1))
sketch12.addConstraint(Sketcher.Constraint("Coincident", 15, 2, 12, 1))
sketch12.addConstraint(Sketcher.Constraint("Horizontal", 7))
sketch12.addConstraint(Sketcher.Constraint("Vertical", 9))
sketch12.addConstraint(Sketcher.Constraint("Vertical", 12))
sketch12.addConstraint(Sketcher.Constraint("Horizontal", 14))
sketch12.addConstraint(Sketcher.Constraint("Coincident", 5, 3, 0, 3))
sketch12.addConstraint(Sketcher.Constraint("Coincident", 8, 3, 0, 3))
sketch12.addConstraint(Sketcher.Constraint("Coincident", 10, 3, 0, 3))
sketch12.addConstraint(Sketcher.Constraint("Coincident", 13, 3, 0, 3))
sketch12.addConstraint(Sketcher.Constraint("Coincident", 15, 3, 0, 3))
sketch12.addConstraint(Sketcher.Constraint("Equal", 3, 4))
sketch12.addConstraint(Sketcher.Constraint("Equal", 4, 6))
sketch12.addConstraint(Sketcher.Constraint("Equal", 6, 11))
sketch12.addConstraint(Sketcher.Constraint("Equal", 8, 13))
sketch12.addConstraint(Sketcher.Constraint("Equal", 10, 15))
sketch12.addConstraint(Sketcher.Constraint("Horizontal", 0, 3, 3, 3))
sketch12.addConstraint(Sketcher.Constraint("Horizontal", 10, 3, 11, 3))
sketch12.addConstraint(Sketcher.Constraint("Horizontal", 15, 3, 1, 2))
sketch12.addConstraint(Sketcher.Constraint("Vertical", 0, 3, 4, 3))
sketch12.addConstraint(Sketcher.Constraint("Vertical", 5, 3, 6, 3))
sketch12.addConstraint(Sketcher.Constraint("Vertical", 15, 3, 0, 1))
sketch12.addConstraint(Sketcher.Constraint("Vertical", 0, 1, 2, 2))
sketch12.addConstraint(Sketcher.Constraint("Vertical", 2, 2, 8, 1))
sketch12.addConstraint(Sketcher.Constraint("Vertical", 9, 2, 12, 2))
sketch12.addConstraint(Sketcher.Constraint("Vertical", 7, 2, 13, 1))
sketch12.addConstraint(Sketcher.Constraint("Radius", 0, Q("1.5 in")))
sketch12.addConstraint(Sketcher.Constraint("Diameter", 3, Q("0.205 in")))
sketch12.addConstraint(Sketcher.Constraint("Diameter", 5, Q("1.375 in")))
sketch12.addConstraint(Sketcher.Constraint("Radius", 8, Q("1.125 in")))
sketch12.addConstraint(Sketcher.Constraint("Radius", 10, Q("1.375 in")))
sketch12.addConstraint(Sketcher.Constraint("DistanceX", 1, 2, 3, 3, Q("0.5 in")))
sketch12.addConstraint(Sketcher.Constraint("DistanceY", 9, 2, 4, 3, Q("0.5 in")))
sketch12.addConstraint(Sketcher.Constraint("DistanceY", 6, 3, 15, 2, Q("0.5 in")))
sketch12.addConstraint(Sketcher.Constraint("DistanceY", 7, 2, 13, 1, Q("0.25 in")))
sketch12.addConstraint(Sketcher.Constraint("DistanceX", 3, 3, 0, 3, Q("0.875 in")))
sketch12.addConstraint(Sketcher.Constraint("DistanceX", 0, 3, 11, 3, Q("0.875 in")))
sketch12.addConstraint(Sketcher.Constraint("DistanceX", -1, 1, 7, 2, 672.52959))
sketch12.addConstraint(Sketcher.Constraint("DistanceY", 0, 3, -1, 1, 3.206573))
pad5 = body3.newObject("PartDesign::Pad", "Pad004")
pad5.Profile = sketch12
pad5.Length = Q("0.25 in")
pad5.Reversed = True
doc.recompute()

fillet2 = body3.newObject("PartDesign::Fillet", "Fillet001")
fillet2.Base = (pad5, edges_at(pad5, [
    (-41.275, 644.132, 31.718),
    (-41.275, 678.912, -0.032),
    (-41.275, 672.53, -0.032),
    (-41.275, 644.132, 25.368),
    (-41.275, 609.207, -3.207),
    (-41.275, 644.132, -41.307),
    (-41.275, 644.132, 34.893),
    (-41.275, 678.912, -6.382),
    (-41.275, 644.132, -38.132),
    (-41.275, 644.132, -31.782),
    (-41.275, 672.53, -6.382),
]))
fillet2.Radius = Q("0.1 in")

doc.recompute()
